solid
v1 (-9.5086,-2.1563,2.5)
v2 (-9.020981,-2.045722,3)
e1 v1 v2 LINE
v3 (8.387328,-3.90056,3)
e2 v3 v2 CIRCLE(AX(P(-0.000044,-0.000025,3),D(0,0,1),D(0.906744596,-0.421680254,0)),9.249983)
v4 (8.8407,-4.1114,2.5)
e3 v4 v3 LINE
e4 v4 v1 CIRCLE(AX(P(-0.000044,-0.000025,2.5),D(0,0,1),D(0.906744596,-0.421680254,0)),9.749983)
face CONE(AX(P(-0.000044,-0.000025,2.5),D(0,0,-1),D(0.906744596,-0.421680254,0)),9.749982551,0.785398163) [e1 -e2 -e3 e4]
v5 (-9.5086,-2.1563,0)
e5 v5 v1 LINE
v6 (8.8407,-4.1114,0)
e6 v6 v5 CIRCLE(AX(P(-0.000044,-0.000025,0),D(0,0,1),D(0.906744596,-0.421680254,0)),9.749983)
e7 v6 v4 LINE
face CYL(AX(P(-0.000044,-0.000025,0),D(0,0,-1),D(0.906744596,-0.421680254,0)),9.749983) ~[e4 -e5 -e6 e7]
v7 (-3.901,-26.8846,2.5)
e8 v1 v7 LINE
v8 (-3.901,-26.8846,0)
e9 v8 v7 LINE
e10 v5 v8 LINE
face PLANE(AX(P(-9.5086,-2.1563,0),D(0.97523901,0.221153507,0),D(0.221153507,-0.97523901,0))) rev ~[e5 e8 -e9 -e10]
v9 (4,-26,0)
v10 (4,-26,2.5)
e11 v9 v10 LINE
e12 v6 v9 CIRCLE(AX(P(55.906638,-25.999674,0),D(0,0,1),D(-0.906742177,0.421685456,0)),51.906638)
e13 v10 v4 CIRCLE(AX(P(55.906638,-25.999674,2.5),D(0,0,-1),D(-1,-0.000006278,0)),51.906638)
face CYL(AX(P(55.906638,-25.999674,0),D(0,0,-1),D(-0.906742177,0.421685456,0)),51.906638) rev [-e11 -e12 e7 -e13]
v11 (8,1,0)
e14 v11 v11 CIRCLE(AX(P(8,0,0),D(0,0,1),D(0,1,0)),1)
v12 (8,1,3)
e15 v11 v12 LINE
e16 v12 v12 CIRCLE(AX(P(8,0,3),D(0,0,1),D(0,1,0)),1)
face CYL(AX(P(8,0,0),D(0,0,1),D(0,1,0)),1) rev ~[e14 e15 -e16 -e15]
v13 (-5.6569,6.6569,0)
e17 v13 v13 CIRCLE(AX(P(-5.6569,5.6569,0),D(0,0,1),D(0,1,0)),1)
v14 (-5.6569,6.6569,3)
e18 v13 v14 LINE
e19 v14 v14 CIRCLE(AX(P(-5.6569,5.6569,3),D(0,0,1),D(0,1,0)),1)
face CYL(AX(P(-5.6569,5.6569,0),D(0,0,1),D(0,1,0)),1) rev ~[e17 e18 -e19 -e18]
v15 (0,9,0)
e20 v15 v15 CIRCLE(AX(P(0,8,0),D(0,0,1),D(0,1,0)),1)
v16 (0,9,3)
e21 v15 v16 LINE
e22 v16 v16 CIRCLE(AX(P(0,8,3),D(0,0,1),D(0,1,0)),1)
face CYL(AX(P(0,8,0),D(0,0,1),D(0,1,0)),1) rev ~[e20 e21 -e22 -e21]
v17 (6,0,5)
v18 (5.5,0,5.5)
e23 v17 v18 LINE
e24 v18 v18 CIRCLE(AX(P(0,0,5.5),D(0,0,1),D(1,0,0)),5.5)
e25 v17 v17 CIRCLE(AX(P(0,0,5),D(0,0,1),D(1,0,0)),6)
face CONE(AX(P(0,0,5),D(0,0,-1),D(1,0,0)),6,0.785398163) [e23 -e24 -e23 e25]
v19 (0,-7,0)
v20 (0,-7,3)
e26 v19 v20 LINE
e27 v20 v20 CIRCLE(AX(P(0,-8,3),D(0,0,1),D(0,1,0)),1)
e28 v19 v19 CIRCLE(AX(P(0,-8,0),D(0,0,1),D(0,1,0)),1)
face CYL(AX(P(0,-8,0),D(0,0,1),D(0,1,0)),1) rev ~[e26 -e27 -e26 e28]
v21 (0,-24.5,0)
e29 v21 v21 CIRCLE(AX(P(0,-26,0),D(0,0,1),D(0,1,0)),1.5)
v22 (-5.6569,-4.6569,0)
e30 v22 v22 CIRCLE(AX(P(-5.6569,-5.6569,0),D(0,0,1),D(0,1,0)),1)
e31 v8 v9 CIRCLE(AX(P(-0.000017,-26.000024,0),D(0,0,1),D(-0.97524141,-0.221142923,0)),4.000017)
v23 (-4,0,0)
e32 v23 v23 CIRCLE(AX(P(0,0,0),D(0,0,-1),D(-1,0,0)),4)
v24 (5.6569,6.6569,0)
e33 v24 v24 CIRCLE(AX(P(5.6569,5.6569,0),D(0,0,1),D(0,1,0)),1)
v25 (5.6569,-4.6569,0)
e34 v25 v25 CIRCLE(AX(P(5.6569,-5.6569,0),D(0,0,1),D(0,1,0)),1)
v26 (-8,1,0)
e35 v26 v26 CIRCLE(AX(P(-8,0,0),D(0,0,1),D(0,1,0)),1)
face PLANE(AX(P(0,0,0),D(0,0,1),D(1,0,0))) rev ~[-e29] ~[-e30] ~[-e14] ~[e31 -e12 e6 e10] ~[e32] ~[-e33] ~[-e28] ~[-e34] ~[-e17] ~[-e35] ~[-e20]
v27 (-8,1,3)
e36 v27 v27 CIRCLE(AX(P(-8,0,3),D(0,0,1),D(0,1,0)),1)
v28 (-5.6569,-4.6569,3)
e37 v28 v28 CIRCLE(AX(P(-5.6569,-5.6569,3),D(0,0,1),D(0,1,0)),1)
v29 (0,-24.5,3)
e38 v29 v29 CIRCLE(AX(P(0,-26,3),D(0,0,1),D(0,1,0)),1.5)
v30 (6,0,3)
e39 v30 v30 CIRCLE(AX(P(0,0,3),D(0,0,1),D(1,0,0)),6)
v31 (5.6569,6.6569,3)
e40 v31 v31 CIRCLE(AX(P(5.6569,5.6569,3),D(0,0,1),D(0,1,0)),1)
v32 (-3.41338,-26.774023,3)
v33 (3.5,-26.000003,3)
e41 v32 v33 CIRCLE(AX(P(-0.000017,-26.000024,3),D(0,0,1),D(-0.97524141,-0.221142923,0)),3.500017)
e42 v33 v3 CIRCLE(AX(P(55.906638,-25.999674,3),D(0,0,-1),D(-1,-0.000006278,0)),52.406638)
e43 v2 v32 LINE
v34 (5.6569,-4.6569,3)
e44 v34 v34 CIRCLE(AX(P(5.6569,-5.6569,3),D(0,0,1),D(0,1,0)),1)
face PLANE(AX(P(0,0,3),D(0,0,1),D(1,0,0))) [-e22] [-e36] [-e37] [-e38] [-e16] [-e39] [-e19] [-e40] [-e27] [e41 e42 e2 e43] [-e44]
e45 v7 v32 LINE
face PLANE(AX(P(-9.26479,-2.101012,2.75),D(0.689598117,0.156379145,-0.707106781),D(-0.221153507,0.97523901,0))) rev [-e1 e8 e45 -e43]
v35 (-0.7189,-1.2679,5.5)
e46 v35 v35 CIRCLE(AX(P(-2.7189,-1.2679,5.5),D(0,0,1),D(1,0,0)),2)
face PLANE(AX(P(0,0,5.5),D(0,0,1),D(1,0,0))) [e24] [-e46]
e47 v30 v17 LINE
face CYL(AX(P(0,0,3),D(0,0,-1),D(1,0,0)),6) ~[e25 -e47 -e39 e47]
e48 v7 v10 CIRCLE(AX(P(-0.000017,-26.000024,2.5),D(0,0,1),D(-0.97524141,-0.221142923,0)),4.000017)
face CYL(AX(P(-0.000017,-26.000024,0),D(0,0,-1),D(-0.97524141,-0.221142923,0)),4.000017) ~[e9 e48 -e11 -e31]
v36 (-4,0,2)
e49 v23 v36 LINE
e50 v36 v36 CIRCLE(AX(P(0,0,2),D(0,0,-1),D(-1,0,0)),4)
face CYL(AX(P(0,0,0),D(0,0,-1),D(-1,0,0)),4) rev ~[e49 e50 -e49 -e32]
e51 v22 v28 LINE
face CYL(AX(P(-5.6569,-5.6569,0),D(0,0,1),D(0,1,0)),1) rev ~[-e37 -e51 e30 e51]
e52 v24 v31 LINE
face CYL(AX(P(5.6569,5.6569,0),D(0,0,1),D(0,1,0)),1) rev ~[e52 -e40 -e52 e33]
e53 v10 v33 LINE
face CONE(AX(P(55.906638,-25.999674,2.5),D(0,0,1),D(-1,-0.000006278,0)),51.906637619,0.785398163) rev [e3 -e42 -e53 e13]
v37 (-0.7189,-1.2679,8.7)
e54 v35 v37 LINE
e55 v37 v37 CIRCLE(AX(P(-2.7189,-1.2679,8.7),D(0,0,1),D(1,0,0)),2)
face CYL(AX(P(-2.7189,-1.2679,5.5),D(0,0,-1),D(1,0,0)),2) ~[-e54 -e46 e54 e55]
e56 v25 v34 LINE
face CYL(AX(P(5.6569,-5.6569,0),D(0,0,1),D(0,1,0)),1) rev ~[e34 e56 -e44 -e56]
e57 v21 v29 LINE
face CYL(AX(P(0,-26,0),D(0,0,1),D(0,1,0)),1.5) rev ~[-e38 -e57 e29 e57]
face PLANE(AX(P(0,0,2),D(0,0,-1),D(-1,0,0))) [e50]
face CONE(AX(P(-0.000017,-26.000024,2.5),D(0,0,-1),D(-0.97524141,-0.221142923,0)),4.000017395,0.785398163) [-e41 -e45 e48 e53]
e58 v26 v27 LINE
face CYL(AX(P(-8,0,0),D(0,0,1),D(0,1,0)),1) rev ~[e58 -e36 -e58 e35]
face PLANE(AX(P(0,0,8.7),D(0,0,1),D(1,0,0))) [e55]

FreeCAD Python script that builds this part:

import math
import FreeCAD as App
import Part
import Sketcher
Q = App.Units.Quantity


def edges_at(feature, points):
    """Names of the edges that pass closest to the given points."""
    edges = feature.Shape.Edges
    near = lambda p: min(range(len(edges)), key=lambda i: edges[i].distToShape(Part.Vertex(*p))[0])
    return sorted({f"Edge{near(p) + 1}" for p in points})

doc = App.newDocument("Part")
body = doc.addObject("PartDesign::Body", "Body")

sketch1 = doc.addObject("Sketcher::SketchObject", "Sketch")
body.addObject(sketch1)
sketch1.AttachmentSupport = (doc.XY_Plane, [""])
sketch1.MapMode = "FlatFace"
sketch1.addGeometry([
    Part.ArcOfCircle(Part.Circle(App.Vector(55.9, -26, 0), App.Vector(0, 0, 1), 51.9), math.radians(155), math.radians(180)),
    Part.ArcOfCircle(Part.Circle(App.Vector(0, 0, 0), App.Vector(0, 0, 1), 9.7), math.radians(-25), math.radians(193)),
    Part.LineSegment(App.Vector(-9.5, -2.2, 0), App.Vector(-3.9, -26.9, 0)),
    Part.ArcOfCircle(Part.Circle(App.Vector(0, -26, 0), App.Vector(0, 0, 1), 4), math.radians(-167), math.radians(0)),
], False)
sketch1.addConstraint([
    Sketcher.Constraint("Tangent", 0, 1, 1, 1),
    Sketcher.Constraint("Tangent", 1, 2, 2, 1),
    Sketcher.Constraint("Tangent", 2, 2, 3, 1),
    Sketcher.Constraint("Tangent", 3, 2, 0, 2),
    Sketcher.Constraint("Coincident", 1, 3, -1, 1),
    Sketcher.Constraint("PointOnObject", 3, 3, -2),
    Sketcher.Constraint("Radius", 3, Q("4 mm")),
    Sketcher.Constraint("Radius", 1, Q("9.75 mm")),
    Sketcher.Constraint("DistanceY", 3, 3, -1, 1, Q("26 mm")),
    Sketcher.Constraint("DistanceY", 3, 2, -1, 1, Q("26 mm")),
])
pad1 = doc.addObject("PartDesign::Pad", "Pad")
body.addObject(pad1)
pad1.Profile = sketch1
pad1.Length = 3

sketch2 = doc.addObject("Sketcher::SketchObject", "Sketch001")
body.addObject(sketch2)
sketch2.AttachmentSupport = (doc.XY_Plane, [""])
sketch2.MapMode = "FlatFace"
sketch2.AttachmentOffset = App.Placement(App.Vector(0, 0, 3), App.Rotation())
sketch2.addGeometry(Part.Circle(App.Vector(0, 0, 0), App.Vector(0, 0, 1), 6), False)
sketch2.addConstraint([
    Sketcher.Constraint("Coincident", 0, 3, -1, 1),
    Sketcher.Constraint("Diameter", 0, Q("12 mm")),
])
pad2 = doc.addObject("PartDesign::Pad", "Pad001")
body.addObject(pad2)
pad2.Profile = sketch2
pad2.Length = 2.5

sketch3 = doc.addObject("Sketcher::SketchObject", "Sketch002")
body.addObject(sketch3)
sketch3.AttachmentSupport = (doc.XY_Plane, [""])
sketch3.MapMode = "FlatFace"
sketch3.addGeometry([
    Part.Circle(App.Vector(8, 0, 0), App.Vector(0, 0, 1), 1),
    Part.Circle(App.Vector(5.7, 5.7, 0), App.Vector(0, 0, 1), 1),
    Part.Circle(App.Vector(0, 8, 0), App.Vector(0, 0, 1), 1),
    Part.Circle(App.Vector(-5.7, 5.7, 0), App.Vector(0, 0, 1), 1),
    Part.Circle(App.Vector(-8, 0, 0), App.Vector(0, 0, 1), 1),
    Part.Circle(App.Vector(-5.7, -5.7, 0), App.Vector(0, 0, 1), 1),
    Part.Circle(App.Vector(0, -8, 0), App.Vector(0, 0, 1), 1),
    Part.Circle(App.Vector(5.7, -5.7, 0), App.Vector(0, 0, 1), 1),
], False)
sketch3.addConstraint([
    Sketcher.Constraint("Equal", 0, 1),
    Sketcher.Constraint("Equal", 1, 2),
    Sketcher.Constraint("Equal", 2, 3),
    Sketcher.Constraint("Equal", 3, 4),
    Sketcher.Constraint("Equal", 4, 5),
    Sketcher.Constraint("Equal", 5, 6),
    Sketcher.Constraint("Equal", 6, 7),
    Sketcher.Constraint("Symmetric", 0, 3, 4, 3, -1, 1),
    Sketcher.Constraint("Symmetric", 1, 3, 5, 3, -1, 1),
    Sketcher.Constraint("Symmetric", 2, 3, 6, 3, -1, 1),
    Sketcher.Constraint("Symmetric", 3, 3, 7, 3, -1, 1),
    Sketcher.Constraint("Symmetric", 1, 3, 3, 3, -2),
    Sketcher.Constraint("PointOnObject", 0, 3, -1),
    Sketcher.Constraint("PointOnObject", 2, 3, -2),
    Sketcher.Constraint("Diameter", 0, Q("2 mm")),
    Sketcher.Constraint("DistanceX", -1, 1, 0, 3, Q("8 mm")),
    Sketcher.Constraint("DistanceY", -1, 1, 2, 3, Q("8 mm")),
    Sketcher.Constraint("DistanceX", -1, 1, 1, 3, Q("5.657 mm")),
    Sketcher.Constraint("DistanceY", -1, 1, 1, 3, Q("5.657 mm")),
])
doc.recompute()
hole = doc.addObject("PartDesign::Hole", "Hole")
body.addObject(hole)
hole.Profile = sketch3
hole.ThreadType = "None"
hole.Diameter = 2
hole.DepthType = "ThroughAll"
hole.Reversed = True

sketch4 = doc.addObject("Sketcher::SketchObject", "Sketch003")
body.addObject(sketch4)
sketch4.AttachmentSupport = (doc.XY_Plane, [""])
sketch4.MapMode = "FlatFace"
sketch4.addGeometry(Part.Circle(App.Vector(0, -26, 0), App.Vector(0, 0, 1), 1.5), False)
sketch4.addConstraint([
    Sketcher.Constraint("PointOnObject", 0, 3, -2),
    Sketcher.Constraint("Diameter", 0, Q("3 mm")),
    Sketcher.Constraint("DistanceY", 0, 3, -1, 1, Q("26 mm")),
])
doc.recompute()
hole2 = doc.addObject("PartDesign::Hole", "Hole001")
body.addObject(hole2)
hole2.Profile = sketch4
hole2.ThreadType = "None"
hole2.Diameter = 3
hole2.DepthType = "ThroughAll"
hole2.Reversed = True

sketch5 = doc.addObject("Sketcher::SketchObject", "Sketch004")
body.addObject(sketch5)
sketch5.AttachmentSupport = (doc.XY_Plane, [""])
sketch5.MapMode = "FlatFace"
sketch5.addGeometry(Part.Circle(App.Vector(0, 0, 0), App.Vector(0, 0, 1), 4), False)
sketch5.addConstraint([
    Sketcher.Constraint("Coincident", 0, 3, -1, 1),
    Sketcher.Constraint("Diameter", 0, Q("8 mm")),
])
pocket1 = doc.addObject("PartDesign::Pocket", "Pocket")
body.addObject(pocket1)
pocket1.Profile = sketch5
pocket1.Length = 2
pocket1.Reversed = True

sketch6 = doc.addObject("Sketcher::SketchObject", "Sketch005")
body.addObject(sketch6)
sketch6.AttachmentSupport = (doc.XY_Plane, [""])
sketch6.MapMode = "FlatFace"
sketch6.AttachmentOffset = App.Placement(App.Vector(0, 0, 5.5), App.Rotation())
sketch6.addGeometry(Part.Circle(App.Vector(-2.7, -1.3, 0), App.Vector(0, 0, 1), 2), False)
sketch6.addConstraint([
    Sketcher.Constraint("Diameter", 0, Q("4 mm")),
    Sketcher.Constraint("DistanceX", 0, 3, -1, 1, Q("2.719 mm")),
    Sketcher.Constraint("DistanceY", 0, 3, -1, 1, Q("1.268 mm")),
])
pad3 = doc.addObject("PartDesign::Pad", "Pad002")
body.addObject(pad3)
pad3.Profile = sketch6
pad3.Length = 3.2
doc.recompute()

chamfer = doc.addObject("PartDesign::Chamfer", "Chamfer")
body.addObject(chamfer)
chamfer.Base = (pad3, edges_at(pad3, [
    (-6, 0, 5.5),
    (1.033, 9.695, 3),
    (-6.705, -14.52, 3),
    (0.445, -29.975, 3),
    (5.225, -14.791, 3),
]))
chamfer.Size = 0.5

doc.recompute()
